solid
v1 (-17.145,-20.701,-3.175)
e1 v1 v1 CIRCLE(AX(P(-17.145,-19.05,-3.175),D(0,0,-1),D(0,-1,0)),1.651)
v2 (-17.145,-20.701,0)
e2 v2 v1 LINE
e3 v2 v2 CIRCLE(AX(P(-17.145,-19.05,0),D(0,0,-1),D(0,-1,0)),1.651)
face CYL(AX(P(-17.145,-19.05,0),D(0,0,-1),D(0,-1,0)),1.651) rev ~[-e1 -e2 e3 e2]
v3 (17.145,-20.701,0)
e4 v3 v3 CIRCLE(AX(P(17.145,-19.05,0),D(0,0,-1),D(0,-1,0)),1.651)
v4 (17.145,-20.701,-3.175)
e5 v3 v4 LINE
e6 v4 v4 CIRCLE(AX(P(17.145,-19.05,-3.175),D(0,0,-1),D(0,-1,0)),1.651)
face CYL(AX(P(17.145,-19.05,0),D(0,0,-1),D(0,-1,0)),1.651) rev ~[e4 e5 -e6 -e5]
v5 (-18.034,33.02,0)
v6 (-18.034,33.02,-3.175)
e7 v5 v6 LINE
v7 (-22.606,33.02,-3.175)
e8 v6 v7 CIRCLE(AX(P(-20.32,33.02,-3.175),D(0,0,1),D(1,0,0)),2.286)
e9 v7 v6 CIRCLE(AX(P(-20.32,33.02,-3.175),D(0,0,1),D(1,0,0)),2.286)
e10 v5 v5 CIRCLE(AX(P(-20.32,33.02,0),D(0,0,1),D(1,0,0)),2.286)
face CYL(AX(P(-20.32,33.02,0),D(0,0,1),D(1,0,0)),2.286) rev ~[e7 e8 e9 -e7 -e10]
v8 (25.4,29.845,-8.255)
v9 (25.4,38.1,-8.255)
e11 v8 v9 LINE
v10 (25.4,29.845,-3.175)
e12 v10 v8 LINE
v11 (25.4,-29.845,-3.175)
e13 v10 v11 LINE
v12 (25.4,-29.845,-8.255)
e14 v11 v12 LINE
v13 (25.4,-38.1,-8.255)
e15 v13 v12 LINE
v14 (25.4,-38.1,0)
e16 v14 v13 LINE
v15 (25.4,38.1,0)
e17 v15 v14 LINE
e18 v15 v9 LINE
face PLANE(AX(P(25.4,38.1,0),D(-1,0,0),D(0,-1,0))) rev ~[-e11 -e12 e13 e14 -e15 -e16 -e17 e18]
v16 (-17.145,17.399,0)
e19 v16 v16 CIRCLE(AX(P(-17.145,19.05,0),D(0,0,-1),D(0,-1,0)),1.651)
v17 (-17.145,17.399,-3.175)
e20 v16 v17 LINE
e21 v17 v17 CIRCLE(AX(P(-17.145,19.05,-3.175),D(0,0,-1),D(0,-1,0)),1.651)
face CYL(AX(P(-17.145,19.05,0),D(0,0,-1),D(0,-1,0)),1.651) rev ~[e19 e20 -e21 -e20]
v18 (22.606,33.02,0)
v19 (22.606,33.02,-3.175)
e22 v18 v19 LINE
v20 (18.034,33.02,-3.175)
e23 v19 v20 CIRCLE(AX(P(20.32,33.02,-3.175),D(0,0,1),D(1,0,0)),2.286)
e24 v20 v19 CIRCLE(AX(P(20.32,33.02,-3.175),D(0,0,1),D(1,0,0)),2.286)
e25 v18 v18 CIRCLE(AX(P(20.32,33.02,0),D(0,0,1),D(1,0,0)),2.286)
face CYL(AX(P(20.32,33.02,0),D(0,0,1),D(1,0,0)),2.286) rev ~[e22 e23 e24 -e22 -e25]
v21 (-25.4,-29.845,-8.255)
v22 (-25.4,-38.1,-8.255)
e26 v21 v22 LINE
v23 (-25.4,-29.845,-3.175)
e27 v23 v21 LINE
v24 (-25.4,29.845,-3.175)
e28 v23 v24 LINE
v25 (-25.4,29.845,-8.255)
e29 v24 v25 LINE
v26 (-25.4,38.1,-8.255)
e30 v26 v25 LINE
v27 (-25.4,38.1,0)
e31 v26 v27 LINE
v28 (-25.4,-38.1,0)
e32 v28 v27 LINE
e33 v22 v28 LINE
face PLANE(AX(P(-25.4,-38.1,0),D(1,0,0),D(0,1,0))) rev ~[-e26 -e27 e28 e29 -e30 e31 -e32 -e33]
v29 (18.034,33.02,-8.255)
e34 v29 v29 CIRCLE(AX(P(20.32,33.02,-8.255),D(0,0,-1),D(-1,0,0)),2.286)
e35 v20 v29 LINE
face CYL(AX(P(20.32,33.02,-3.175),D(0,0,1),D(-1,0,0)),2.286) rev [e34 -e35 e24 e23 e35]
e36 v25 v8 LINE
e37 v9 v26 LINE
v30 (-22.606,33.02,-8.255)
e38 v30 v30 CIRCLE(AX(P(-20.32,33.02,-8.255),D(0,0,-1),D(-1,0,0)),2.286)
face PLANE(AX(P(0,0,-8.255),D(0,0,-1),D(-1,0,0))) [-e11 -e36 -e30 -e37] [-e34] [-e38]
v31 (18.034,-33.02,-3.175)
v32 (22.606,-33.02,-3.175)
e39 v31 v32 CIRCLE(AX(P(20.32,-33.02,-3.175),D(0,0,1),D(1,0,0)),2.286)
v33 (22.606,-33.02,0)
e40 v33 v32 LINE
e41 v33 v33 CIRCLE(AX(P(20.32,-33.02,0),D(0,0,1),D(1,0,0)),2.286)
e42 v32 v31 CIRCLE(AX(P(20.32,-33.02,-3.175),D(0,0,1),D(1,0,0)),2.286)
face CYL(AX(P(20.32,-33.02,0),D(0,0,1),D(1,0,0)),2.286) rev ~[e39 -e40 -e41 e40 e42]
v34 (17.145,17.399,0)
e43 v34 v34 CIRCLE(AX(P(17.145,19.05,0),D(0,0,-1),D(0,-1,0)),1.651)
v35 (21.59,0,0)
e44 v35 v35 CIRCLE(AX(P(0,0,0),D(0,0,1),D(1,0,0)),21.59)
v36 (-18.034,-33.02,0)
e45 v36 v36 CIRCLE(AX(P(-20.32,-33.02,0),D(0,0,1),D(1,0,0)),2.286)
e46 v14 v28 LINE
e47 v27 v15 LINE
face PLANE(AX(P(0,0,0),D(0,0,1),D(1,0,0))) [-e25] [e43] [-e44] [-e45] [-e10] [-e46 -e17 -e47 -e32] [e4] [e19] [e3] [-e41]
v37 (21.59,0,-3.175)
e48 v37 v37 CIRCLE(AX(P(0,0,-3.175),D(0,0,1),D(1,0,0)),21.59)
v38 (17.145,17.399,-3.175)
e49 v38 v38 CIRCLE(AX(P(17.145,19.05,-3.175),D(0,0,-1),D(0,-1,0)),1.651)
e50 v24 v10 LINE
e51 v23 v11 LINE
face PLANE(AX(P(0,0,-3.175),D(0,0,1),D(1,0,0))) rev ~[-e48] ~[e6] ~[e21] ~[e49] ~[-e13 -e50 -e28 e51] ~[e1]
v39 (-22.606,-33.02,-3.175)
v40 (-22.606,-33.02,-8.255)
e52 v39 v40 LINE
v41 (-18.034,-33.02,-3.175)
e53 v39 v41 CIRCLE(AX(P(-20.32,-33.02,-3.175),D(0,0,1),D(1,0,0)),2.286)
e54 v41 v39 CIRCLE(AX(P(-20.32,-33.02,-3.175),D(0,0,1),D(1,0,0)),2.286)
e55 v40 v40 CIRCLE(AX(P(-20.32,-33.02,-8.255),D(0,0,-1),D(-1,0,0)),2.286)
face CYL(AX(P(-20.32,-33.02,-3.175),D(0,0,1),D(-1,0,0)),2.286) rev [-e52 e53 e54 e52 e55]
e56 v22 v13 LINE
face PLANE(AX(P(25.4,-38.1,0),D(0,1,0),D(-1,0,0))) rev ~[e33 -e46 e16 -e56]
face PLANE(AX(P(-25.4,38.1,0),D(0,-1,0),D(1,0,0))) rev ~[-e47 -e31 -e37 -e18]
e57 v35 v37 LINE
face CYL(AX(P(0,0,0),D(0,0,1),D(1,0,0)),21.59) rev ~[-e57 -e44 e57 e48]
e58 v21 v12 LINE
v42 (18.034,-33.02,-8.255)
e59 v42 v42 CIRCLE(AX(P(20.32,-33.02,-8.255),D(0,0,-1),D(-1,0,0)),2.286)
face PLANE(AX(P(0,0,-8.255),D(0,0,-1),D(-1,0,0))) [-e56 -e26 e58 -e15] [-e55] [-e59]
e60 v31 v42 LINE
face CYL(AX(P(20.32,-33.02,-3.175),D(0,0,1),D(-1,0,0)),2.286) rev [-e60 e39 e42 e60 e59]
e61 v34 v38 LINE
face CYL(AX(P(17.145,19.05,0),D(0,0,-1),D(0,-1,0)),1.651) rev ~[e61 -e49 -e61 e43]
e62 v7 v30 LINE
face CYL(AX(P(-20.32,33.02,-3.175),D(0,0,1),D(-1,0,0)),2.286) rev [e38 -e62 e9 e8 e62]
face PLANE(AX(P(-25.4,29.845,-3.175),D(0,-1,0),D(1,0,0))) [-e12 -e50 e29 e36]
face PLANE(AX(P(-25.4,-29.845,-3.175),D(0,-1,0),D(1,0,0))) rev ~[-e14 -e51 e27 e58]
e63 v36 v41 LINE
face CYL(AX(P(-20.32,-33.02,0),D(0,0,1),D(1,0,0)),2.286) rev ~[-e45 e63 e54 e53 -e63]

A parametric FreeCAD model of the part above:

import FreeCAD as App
import Part
import Sketcher
from FreeCAD import Vector
Q = App.Units.Quantity

doc = App.newDocument("Part")
body = doc.addObject("PartDesign::Body", "Body")

# Sketch on XY plane
sketch1 = body.newObject("Sketcher::SketchObject", "Sketch")
sketch1.AttachmentSupport = (doc.getObject("XY_Plane"), [""])
sketch1.MapMode = "FlatFace"
sketch1.addGeometry([
    Part.LineSegment(Vector(25.4, 38.1, 0), Vector(-25.4, 38.1, 0)),  # 0
    Part.LineSegment(Vector(-25.4, 38.1, 0), Vector(-25.4, -38.1, 0)),  # 1
    Part.LineSegment(Vector(-25.4, -38.1, 0), Vector(25.4, -38.1, 0)),  # 2
    Part.LineSegment(Vector(25.4, -38.1, 0), Vector(25.4, 38.1, 0)),  # 3
    Part.Circle(Vector(-20.3, -33, 0), Vector(0, 0, 1), 2.3),  # 4
    Part.Circle(Vector(20.3, -33, 0), Vector(0, 0, 1), 2.3),  # 5
    Part.Circle(Vector(0, 0, 0), Vector(0, 0, 1), 21.6),  # 6
    Part.Circle(Vector(-20.3, 33, 0), Vector(0, 0, 1), 2.3),  # 7
    Part.Circle(Vector(20.3, 33, 0), Vector(0, 0, 1), 2.3),  # 8
], False)
sketch1.addConstraint([
    Sketcher.Constraint("Coincident", 0, 2, 1, 1),
    Sketcher.Constraint("Coincident", 1, 2, 2, 1),
    Sketcher.Constraint("Coincident", 2, 2, 3, 1),
    Sketcher.Constraint("Coincident", 3, 2, 0, 1),
    Sketcher.Constraint("Horizontal", 0),
    Sketcher.Constraint("Vertical", 1),
    Sketcher.Constraint("Horizontal", 2),
    Sketcher.Constraint("Vertical", 3),
    Sketcher.Constraint("Coincident", 6, 3, -1, 1),
    Sketcher.Constraint("Equal", 4, 5),
    Sketcher.Constraint("Equal", 5, 7),
    Sketcher.Constraint("Equal", 7, 8),
    Sketcher.Constraint("Symmetric", 5, 3, 7, 3, -1, 1),
    Sketcher.Constraint("Symmetric", 4, 3, 8, 3, -1, 1),
    Sketcher.Constraint("Symmetric", 0, 2, 2, 2, -1, 1),
    Sketcher.Constraint("Symmetric", 4, 3, 5, 3, -2),
    Sketcher.Constraint("Diameter", 6, Q("1.7 in")),
    Sketcher.Constraint("Diameter", 4, Q("0.18 in")),
    Sketcher.Constraint("DistanceX", 0, 2, 0, 1, Q("2 in")),
    Sketcher.Constraint("DistanceY", 1, 2, 1, 1, Q("3 in")),
    Sketcher.Constraint("DistanceX", 4, 3, 5, 3, Q("1.6 in")),
    Sketcher.Constraint("DistanceY", 4, 3, 7, 3, Q("2.6 in")),
])
pad1 = body.newObject("PartDesign::Pad", "Pad")
pad1.Profile = sketch1
pad1.Length = Q("0.125 in")
pad1.Reversed = True

# Sketch on XY plane
sketch2 = body.newObject("Sketcher::SketchObject", "Sketch001")
sketch2.AttachmentSupport = (doc.getObject("XY_Plane"), [""])
sketch2.MapMode = "FlatFace"
sketch2.AttachmentOffset = App.Placement(Vector(0, 0, -0.125 * 25.4), App.Rotation())
sketch2.addGeometry([
    Part.LineSegment(Vector(-25.4, 29.8, 0), Vector(-25.4, 38.1, 0)),  # 0
    Part.LineSegment(Vector(-25.4, 38.1, 0), Vector(25.4, 38.1, 0)),  # 1
    Part.LineSegment(Vector(25.4, 38.1, 0), Vector(25.4, 29.8, 0)),  # 2
    Part.LineSegment(Vector(25.4, 29.8, 0), Vector(-25.4, 29.8, 0)),  # 3
    Part.Circle(Vector(20.3, 33, 0), Vector(0, 0, 1), 2.3),  # 4
    Part.Circle(Vector(-20.3, 33, 0), Vector(0, 0, 1), 2.3),  # 5
    Part.LineSegment(Vector(-25.4, -38.1, 0), Vector(-25.4, -29.8, 0)),  # 6
    Part.LineSegment(Vector(-25.4, -29.8, 0), Vector(25.4, -29.8, 0)),  # 7
    Part.LineSegment(Vector(25.4, -29.8, 0), Vector(25.4, -38.1, 0)),  # 8
    Part.LineSegment(Vector(25.4, -38.1, 0), Vector(-25.4, -38.1, 0)),  # 9
    Part.Circle(Vector(20.3, -33, 0), Vector(0, 0, 1), 2.3),  # 10
    Part.Circle(Vector(-20.3, -33, 0), Vector(0, 0, 1), 2.3),  # 11
], False)
sketch2.addConstraint([
    Sketcher.Constraint("Coincident", 0, 2, 1, 1),
    Sketcher.Constraint("Coincident", 1, 2, 2, 1),
    Sketcher.Constraint("Coincident", 2, 2, 3, 1),
    Sketcher.Constraint("Coincident", 3, 2, 0, 1),
    Sketcher.Constraint("Coincident", 6, 2, 7, 1),
    Sketcher.Constraint("Coincident", 7, 2, 8, 1),
    Sketcher.Constraint("Coincident", 8, 2, 9, 1),
    Sketcher.Constraint("Coincident", 9, 2, 6, 1),
    Sketcher.Constraint("Vertical", 0),
    Sketcher.Constraint("Horizontal", 1),
    Sketcher.Constraint("Vertical", 2),
    Sketcher.Constraint("Horizontal", 3),
    Sketcher.Constraint("Vertical", 6),
    Sketcher.Constraint("Horizontal", 7),
    Sketcher.Constraint("Vertical", 8),
    Sketcher.Constraint("Horizontal", 9),
    Sketcher.Constraint("Equal", 4, 5),
    Sketcher.Constraint("Equal", 5, 10),
    Sketcher.Constraint("Equal", 10, 11),
    Sketcher.Constraint("Symmetric", 5, 3, 10, 3, -1, 1),
    Sketcher.Constraint("Symmetric", 4, 3, 11, 3, -1, 1),
    Sketcher.Constraint("Symmetric", 2, 2, 6, 2, -1, 1),
    Sketcher.Constraint("Symmetric", 0, 2, 8, 2, -1, 1),
    Sketcher.Constraint("Symmetric", 4, 3, 5, 3, -2),
    Sketcher.Constraint("Vertical", 3, 2, 6, 2),
    Sketcher.Constraint("Diameter", 4, Q("0.18 in")),
    Sketcher.Constraint("DistanceX", 1, 1, 1, 2, Q("2 in")),
    Sketcher.Constraint("DistanceY", 0, 1, 0, 2, Q("0.325 in")),
    Sketcher.Constraint("DistanceX", -1, 1, 4, 3, Q("0.8 in")),
    Sketcher.Constraint("DistanceY", -1, 1, 4, 3, Q("1.3 in")),
    Sketcher.Constraint("DistanceY", -1, 1, 0, 2, Q("1.5 in")),
])
pad2 = body.newObject("PartDesign::Pad", "Pad001")
pad2.Profile = sketch2
pad2.Length = Q("0.2 in")
pad2.Reversed = True

# Sketch on XY plane
sketch3 = body.newObject("Sketcher::SketchObject", "Sketch002")
sketch3.AttachmentSupport = (doc.getObject("XY_Plane"), [""])
sketch3.MapMode = "FlatFace"
sketch3.addGeometry([
    Part.Circle(Vector(-17.1, 19.1, 0), Vector(0, 0, 1), 1.7),
    Part.Circle(Vector(17.1, 19.1, 0), Vector(0, 0, 1), 1.7),
    Part.Circle(Vector(17.1, -19.1, 0), Vector(0, 0, 1), 1.7),
    Part.Circle(Vector(-17.1, -19.1, 0), Vector(0, 0, 1), 1.7),
], False)
sketch3.addConstraint([
    Sketcher.Constraint("Equal", 0, 1),
    Sketcher.Constraint("Equal", 1, 2),
    Sketcher.Constraint("Equal", 2, 3),
    Sketcher.Constraint("Symmetric", 0, 3, 2, 3, -1, 1),
    Sketcher.Constraint("Symmetric", 1, 3, 3, 3, -1, 1),
    Sketcher.Constraint("Symmetric", 0, 3, 1, 3, -2),
    Sketcher.Constraint("Diameter", 0, Q("0.13 in")),
    Sketcher.Constraint("DistanceY", 2, 3, 1, 3, Q("1.5 in")),
    Sketcher.Constraint("DistanceX", 0, 3, 1, 3, Q("1.35 in")),
])
doc.recompute()
hole = body.newObject("PartDesign::Hole", "Hole")
hole.Profile = sketch3
hole.ThreadType = "None"
hole.Diameter = Q("0.13 in")
hole.DepthType = "ThroughAll"

doc.recompute()
